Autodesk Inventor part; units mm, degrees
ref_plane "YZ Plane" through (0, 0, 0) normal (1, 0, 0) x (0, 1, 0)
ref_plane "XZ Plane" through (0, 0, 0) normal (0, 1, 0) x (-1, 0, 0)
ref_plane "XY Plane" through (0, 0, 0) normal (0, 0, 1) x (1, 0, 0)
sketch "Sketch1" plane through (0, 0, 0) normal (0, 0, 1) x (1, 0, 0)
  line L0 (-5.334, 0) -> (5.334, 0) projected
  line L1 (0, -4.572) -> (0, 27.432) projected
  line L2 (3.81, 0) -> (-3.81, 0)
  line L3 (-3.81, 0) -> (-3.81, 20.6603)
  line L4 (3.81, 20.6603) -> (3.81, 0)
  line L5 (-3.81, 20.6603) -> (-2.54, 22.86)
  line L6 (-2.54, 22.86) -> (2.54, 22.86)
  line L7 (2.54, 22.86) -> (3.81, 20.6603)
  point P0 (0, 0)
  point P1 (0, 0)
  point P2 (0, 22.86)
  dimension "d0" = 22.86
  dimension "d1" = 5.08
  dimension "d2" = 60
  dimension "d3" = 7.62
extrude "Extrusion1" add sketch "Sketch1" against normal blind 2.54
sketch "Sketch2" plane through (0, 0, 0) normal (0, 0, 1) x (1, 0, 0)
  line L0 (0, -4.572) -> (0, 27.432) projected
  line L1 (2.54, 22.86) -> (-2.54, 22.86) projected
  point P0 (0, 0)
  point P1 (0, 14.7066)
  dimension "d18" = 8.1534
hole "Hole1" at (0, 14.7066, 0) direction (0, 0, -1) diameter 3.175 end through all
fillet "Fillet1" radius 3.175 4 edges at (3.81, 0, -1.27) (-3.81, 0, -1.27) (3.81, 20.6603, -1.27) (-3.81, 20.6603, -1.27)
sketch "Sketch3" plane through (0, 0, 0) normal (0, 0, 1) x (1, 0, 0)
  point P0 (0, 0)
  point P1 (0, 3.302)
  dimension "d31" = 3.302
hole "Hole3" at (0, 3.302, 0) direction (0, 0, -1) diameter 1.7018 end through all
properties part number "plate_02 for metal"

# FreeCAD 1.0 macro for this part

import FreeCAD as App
import Part
import Sketcher
Q = App.Units.Quantity


def edges_at(feature, points):
    """Names of the edges that pass closest to the given points."""
    edges = feature.Shape.Edges
    near = lambda p: min(range(len(edges)), key=lambda i: edges[i].distToShape(Part.Vertex(*p))[0])
    return sorted({f"Edge{near(p) + 1}" for p in points})


def add_polygon(sketch, points):
    """Adds a closed chain of lines whose ends are joined by coincident constraints."""
    first, n = sketch.GeometryCount, len(points)
    for a, b in zip(points, points[1:] + points[:1]):
        sketch.addGeometry(Part.LineSegment(App.Vector(*a, 0), App.Vector(*b, 0)), False)
    for i in range(n):
        sketch.addConstraint(Sketcher.Constraint("Coincident", first + i, 2, first + (i + 1) % n, 1))

doc = App.newDocument("Part")
body = doc.addObject("PartDesign::Body", "Body")

# Sketch on XY plane
sketch1 = body.newObject("Sketcher::SketchObject", "Sketch")
sketch1.AttachmentSupport = (doc.getObject("XY_Plane"), [""])
sketch1.MapMode = "FlatFace"
add_polygon(sketch1, [(-3.8, 20.7), (-3.8, 0), (3.8, 0), (3.8, 20.7), (2.5, 22.9), (-2.5, 22.9)])  # lines 0-5
sketch1.addConstraint([
    Sketcher.Constraint("Vertical", 0),
    Sketcher.Constraint("Horizontal", 1),
    Sketcher.Constraint("Vertical", 2),
    Sketcher.Constraint("Horizontal", 4),
    Sketcher.Constraint("Symmetric", 0, 2, 1, 2, -1, 1),
    Sketcher.Constraint("Horizontal", 2, 2, 5, 2),
    Sketcher.Constraint("Equal", 3, 5),
    Sketcher.Constraint("DistanceX", 1, 1, 1, 2, Q("0.3 in")),
    Sketcher.Constraint("DistanceX", 4, 2, 4, 1, Q("0.2 in")),
    Sketcher.Constraint("DistanceY", -1, 1, 3, 2, Q("0.9 in")),
    Sketcher.Constraint("Angle", 3, Q("120 deg")),
])
pad1 = body.newObject("PartDesign::Pad", "Pad")
pad1.Profile = sketch1
pad1.Length = Q("0.1 in")
pad1.Reversed = True

# Sketch on XY plane
sketch2 = body.newObject("Sketcher::SketchObject", "Sketch001")
sketch2.AttachmentSupport = (doc.getObject("XY_Plane"), [""])
sketch2.MapMode = "FlatFace"
sketch2.addGeometry(Part.Circle(App.Vector(0, 14.7, 0), App.Vector(0, 0, 1), 1.6), False)
sketch2.addConstraint([
    Sketcher.Constraint("PointOnObject", 0, 3, -2),
    Sketcher.Constraint("Diameter", 0, Q("0.125 in")),
    Sketcher.Constraint("DistanceY", -1, 1, 0, 3, Q("0.579 in")),
])
doc.recompute()
hole = body.newObject("PartDesign::Hole", "Hole")
hole.Profile = sketch2
hole.ThreadType = "None"
hole.Diameter = Q("0.125 in")
hole.DepthType = "ThroughAll"
doc.recompute()

fillet = body.newObject("PartDesign::Fillet", "Fillet")
fillet.Base = (hole, edges_at(hole, [
    (3.81, 0, -1.27),
    (-3.81, 0, -1.27),
    (3.81, 20.66, -1.27),
    (-3.81, 20.66, -1.27),
]))
fillet.Radius = Q("0.125 in")

# Sketch on XY plane
sketch3 = body.newObject("Sketcher::SketchObject", "Sketch002")
sketch3.AttachmentSupport = (doc.getObject("XY_Plane"), [""])
sketch3.MapMode = "FlatFace"
sketch3.addGeometry(Part.Circle(App.Vector(0, 3.3, 0), App.Vector(0, 0, 1), 0.9), False)
sketch3.addConstraint([
    Sketcher.Constraint("PointOnObject", 0, 3, -2),
    Sketcher.Constraint("Diameter", 0, Q("0.067 in")),
    Sketcher.Constraint("DistanceY", -1, 1, 0, 3, Q("0.13 in")),
])
doc.recompute()
hole2 = body.newObject("PartDesign::Hole", "Hole001")
hole2.Profile = sketch3
hole2.ThreadType = "None"
hole2.Diameter = Q("0.067 in")
hole2.DepthType = "ThroughAll"

doc.recompute()
